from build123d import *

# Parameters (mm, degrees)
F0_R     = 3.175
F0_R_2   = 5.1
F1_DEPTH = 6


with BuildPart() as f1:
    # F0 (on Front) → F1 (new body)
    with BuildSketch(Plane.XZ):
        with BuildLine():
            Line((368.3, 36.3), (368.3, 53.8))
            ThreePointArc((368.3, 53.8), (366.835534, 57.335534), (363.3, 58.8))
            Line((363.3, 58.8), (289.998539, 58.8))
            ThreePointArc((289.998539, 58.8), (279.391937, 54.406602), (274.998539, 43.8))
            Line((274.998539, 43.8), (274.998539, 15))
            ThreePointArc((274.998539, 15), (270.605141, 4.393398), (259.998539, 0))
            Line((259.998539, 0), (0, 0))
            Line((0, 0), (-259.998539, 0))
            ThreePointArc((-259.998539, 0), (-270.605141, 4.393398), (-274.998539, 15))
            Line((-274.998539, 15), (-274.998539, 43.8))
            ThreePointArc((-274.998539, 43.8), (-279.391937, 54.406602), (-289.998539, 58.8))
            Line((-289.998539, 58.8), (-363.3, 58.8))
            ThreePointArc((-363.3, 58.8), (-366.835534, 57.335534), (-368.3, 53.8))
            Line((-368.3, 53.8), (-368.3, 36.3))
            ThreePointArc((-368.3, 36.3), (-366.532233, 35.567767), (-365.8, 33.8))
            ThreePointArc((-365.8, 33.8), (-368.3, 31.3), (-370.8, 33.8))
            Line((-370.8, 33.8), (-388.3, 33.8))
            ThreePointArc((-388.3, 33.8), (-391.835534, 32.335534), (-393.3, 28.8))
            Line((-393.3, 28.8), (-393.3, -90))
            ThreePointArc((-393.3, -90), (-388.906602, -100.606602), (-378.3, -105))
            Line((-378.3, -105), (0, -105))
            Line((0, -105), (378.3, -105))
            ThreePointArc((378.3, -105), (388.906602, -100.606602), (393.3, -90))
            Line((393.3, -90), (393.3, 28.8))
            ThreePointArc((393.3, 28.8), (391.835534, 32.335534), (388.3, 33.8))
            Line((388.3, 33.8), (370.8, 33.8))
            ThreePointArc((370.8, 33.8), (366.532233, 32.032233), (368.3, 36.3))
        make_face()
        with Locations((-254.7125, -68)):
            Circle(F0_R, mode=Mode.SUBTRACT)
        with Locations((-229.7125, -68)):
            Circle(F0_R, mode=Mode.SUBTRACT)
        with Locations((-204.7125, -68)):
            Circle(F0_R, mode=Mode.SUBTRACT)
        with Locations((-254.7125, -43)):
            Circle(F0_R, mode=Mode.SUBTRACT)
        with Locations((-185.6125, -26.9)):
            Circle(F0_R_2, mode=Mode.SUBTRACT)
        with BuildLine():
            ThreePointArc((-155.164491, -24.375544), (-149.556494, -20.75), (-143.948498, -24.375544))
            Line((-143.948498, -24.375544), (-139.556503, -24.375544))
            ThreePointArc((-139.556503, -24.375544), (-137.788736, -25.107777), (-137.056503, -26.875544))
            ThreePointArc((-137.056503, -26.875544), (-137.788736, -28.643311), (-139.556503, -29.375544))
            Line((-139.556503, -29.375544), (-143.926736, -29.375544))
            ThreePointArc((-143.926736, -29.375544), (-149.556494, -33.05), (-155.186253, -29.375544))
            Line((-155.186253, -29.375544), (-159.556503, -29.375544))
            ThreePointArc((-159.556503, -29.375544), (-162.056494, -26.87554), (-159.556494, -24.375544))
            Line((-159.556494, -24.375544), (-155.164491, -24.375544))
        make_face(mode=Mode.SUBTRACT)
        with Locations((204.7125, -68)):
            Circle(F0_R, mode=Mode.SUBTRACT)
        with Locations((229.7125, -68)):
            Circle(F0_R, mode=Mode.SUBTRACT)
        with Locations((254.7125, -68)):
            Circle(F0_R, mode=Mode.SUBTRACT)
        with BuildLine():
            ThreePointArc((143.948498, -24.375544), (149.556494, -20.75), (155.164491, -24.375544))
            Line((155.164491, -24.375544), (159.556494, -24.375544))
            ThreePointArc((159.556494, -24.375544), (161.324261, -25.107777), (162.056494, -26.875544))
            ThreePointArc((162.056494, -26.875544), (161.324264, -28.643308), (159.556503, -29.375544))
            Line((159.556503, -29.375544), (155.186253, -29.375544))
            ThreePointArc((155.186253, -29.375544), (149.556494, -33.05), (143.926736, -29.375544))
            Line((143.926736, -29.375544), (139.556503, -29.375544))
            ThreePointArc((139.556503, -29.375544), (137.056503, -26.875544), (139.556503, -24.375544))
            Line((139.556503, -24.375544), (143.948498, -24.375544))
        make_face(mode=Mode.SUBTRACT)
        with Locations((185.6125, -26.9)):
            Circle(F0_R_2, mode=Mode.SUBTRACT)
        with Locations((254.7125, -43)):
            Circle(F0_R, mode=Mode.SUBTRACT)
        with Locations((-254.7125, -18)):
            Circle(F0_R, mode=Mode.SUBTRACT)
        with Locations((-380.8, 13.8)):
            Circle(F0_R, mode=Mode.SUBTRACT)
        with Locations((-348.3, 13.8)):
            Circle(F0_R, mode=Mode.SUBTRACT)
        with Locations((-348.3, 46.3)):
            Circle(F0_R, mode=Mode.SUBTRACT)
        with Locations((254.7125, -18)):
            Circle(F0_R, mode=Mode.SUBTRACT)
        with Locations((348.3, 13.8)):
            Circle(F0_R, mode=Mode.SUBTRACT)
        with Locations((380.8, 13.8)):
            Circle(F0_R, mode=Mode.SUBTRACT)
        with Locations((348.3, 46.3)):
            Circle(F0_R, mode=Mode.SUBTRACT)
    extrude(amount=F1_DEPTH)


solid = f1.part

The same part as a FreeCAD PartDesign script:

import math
import FreeCAD as App
import Part
import Sketcher

V = App.Vector

doc = App.newDocument("Part")
body = doc.addObject("PartDesign::Body", "Body")

sketch1 = body.newObject("Sketcher::SketchObject", "Sketch")
sketch1.AttachmentSupport = (doc.getObject("XZ_Plane"), [""])
sketch1.MapMode = "FlatFace"
sketch1.addGeometry([
    Part.LineSegment(V(368.3, 36.3, 0), V(368.3, 53.8, 0)),
    Part.ArcOfCircle(Part.Circle(V(363.3, 53.8, 0), V(0, 0, 1), 5), math.radians(0), math.radians(90)),
    Part.LineSegment(V(363.3, 58.8, 0), V(290, 58.8, 0)),
    Part.ArcOfCircle(Part.Circle(V(290, 43.8, 0), V(0, 0, 1), 15), math.radians(90), math.radians(180)),
    Part.LineSegment(V(275, 43.8, 0), V(275, 15, 0)),
    Part.ArcOfCircle(Part.Circle(V(260, 15, 0), V(0, 0, 1), 15), math.radians(-90), math.radians(0)),
    Part.LineSegment(V(260, 0, 0), V(-260, 0, 0)),
    Part.ArcOfCircle(Part.Circle(V(-260, 15, 0), V(0, 0, 1), 15), math.radians(180), math.radians(270)),
    Part.LineSegment(V(-275, 15, 0), V(-275, 43.8, 0)),
    Part.ArcOfCircle(Part.Circle(V(-290, 43.8, 0), V(0, 0, 1), 15), math.radians(0), math.radians(90)),
    Part.LineSegment(V(-290, 58.8, 0), V(-363.3, 58.8, 0)),
    Part.ArcOfCircle(Part.Circle(V(-363.3, 53.8, 0), V(0, 0, 1), 5), math.radians(90), math.radians(180)),
    Part.LineSegment(V(-368.3, 53.8, 0), V(-368.3, 36.3, 0)),
    Part.ArcOfCircle(Part.Circle(V(-368.3, 33.8, 0), V(0, 0, 1), 2.5), math.radians(0), math.radians(90)),
    Part.ArcOfCircle(Part.Circle(V(-368.3, 33.8, 0), V(0, 0, 1), 2.5), math.radians(180), math.radians(360)),
    Part.LineSegment(V(-370.8, 33.8, 0), V(-388.3, 33.8, 0)),
    Part.ArcOfCircle(Part.Circle(V(-388.3, 28.8, 0), V(0, 0, 1), 5), math.radians(90), math.radians(180)),
    Part.LineSegment(V(-393.3, 28.8, 0), V(-393.3, -90, 0)),
    Part.ArcOfCircle(Part.Circle(V(-378.3, -90, 0), V(0, 0, 1), 15), math.radians(180), math.radians(270)),
    Part.LineSegment(V(-378.3, -105, 0), V(378.3, -105, 0)),
    Part.ArcOfCircle(Part.Circle(V(378.3, -90, 0), V(0, 0, 1), 15), math.radians(-90), math.radians(0)),
    Part.LineSegment(V(393.3, -90, 0), V(393.3, 28.8, 0)),
    Part.ArcOfCircle(Part.Circle(V(388.3, 28.8, 0), V(0, 0, 1), 5), math.radians(0), math.radians(90)),
    Part.LineSegment(V(388.3, 33.8, 0), V(370.8, 33.8, 0)),
    Part.ArcOfCircle(Part.Circle(V(368.3, 33.8, 0), V(0, 0, 1), 2.5), math.radians(90), math.radians(360)),
    Part.Circle(V(-254.7, -68, 0), V(0, 0, 1), 3.2),
    Part.Circle(V(-229.7, -68, 0), V(0, 0, 1), 3.2),
    Part.Circle(V(-204.7, -68, 0), V(0, 0, 1), 3.2),
    Part.Circle(V(-254.7, -43, 0), V(0, 0, 1), 3.2),
    Part.Circle(V(-254.7, -18, 0), V(0, 0, 1), 3.2),
    Part.Circle(V(-185.6, -26.9, 0), V(0, 0, 1), 5.1),
    Part.LineSegment(V(-159.6, -24.4, 0), V(-155.2, -24.4, 0)),
    Part.ArcOfCircle(Part.Circle(V(-149.6, -26.9, 0), V(0, 0, 1), 6.2), math.radians(24), math.radians(156)),
    Part.LineSegment(V(-143.9, -24.4, 0), V(-139.6, -24.4, 0)),
    Part.ArcOfCircle(Part.Circle(V(-139.6, -26.9, 0), V(0, 0, 1), 2.5), math.radians(0), math.radians(90)),
    Part.ArcOfCircle(Part.Circle(V(-139.6, -26.9, 0), V(0, 0, 1), 2.5), math.radians(-90), math.radians(0)),
    Part.LineSegment(V(-139.6, -29.4, 0), V(-143.9, -29.4, 0)),
    Part.ArcOfCircle(Part.Circle(V(-149.6, -26.9, 0), V(0, 0, 1), 6.1), math.radians(-156), math.radians(-24)),
    Part.LineSegment(V(-155.2, -29.4, 0), V(-159.6, -29.4, 0)),
    Part.ArcOfCircle(Part.Circle(V(-159.6, -26.9, 0), V(0, 0, 1), 2.5), math.radians(90), math.radians(270)),
    Part.Circle(V(204.7, -68, 0), V(0, 0, 1), 3.2),
    Part.Circle(V(229.7, -68, 0), V(0, 0, 1), 3.2),
    Part.Circle(V(254.7, -68, 0), V(0, 0, 1), 3.2),
    Part.Circle(V(254.7, -43, 0), V(0, 0, 1), 3.2),
    Part.LineSegment(V(139.6, -24.4, 0), V(143.9, -24.4, 0)),
    Part.ArcOfCircle(Part.Circle(V(149.6, -26.9, 0), V(0, 0, 1), 6.2), math.radians(24), math.radians(156)),
    Part.LineSegment(V(155.2, -24.4, 0), V(159.6, -24.4, 0)),
    Part.ArcOfCircle(Part.Circle(V(159.6, -26.9, 0), V(0, 0, 1), 2.5), math.radians(0), math.radians(90)),
    Part.ArcOfCircle(Part.Circle(V(159.6, -26.9, 0), V(0, 0, 1), 2.5), math.radians(-90), math.radians(0)),
    Part.LineSegment(V(159.6, -29.4, 0), V(155.2, -29.4, 0)),
    Part.ArcOfCircle(Part.Circle(V(149.6, -26.9, 0), V(0, 0, 1), 6.1), math.radians(-156), math.radians(-24)),
    Part.LineSegment(V(143.9, -29.4, 0), V(139.6, -29.4, 0)),
    Part.ArcOfCircle(Part.Circle(V(139.6, -26.9, 0), V(0, 0, 1), 2.5), math.radians(90), math.radians(270)),
    Part.Circle(V(185.6, -26.9, 0), V(0, 0, 1), 5.1),
    Part.Circle(V(254.7, -18, 0), V(0, 0, 1), 3.2),
    Part.Circle(V(-380.8, 13.8, 0), V(0, 0, 1), 3.2),
    Part.Circle(V(-348.3, 13.8, 0), V(0, 0, 1), 3.2),
    Part.Circle(V(-348.3, 46.3, 0), V(0, 0, 1), 3.2),
    Part.Circle(V(348.3, 13.8, 0), V(0, 0, 1), 3.2),
    Part.Circle(V(380.8, 13.8, 0), V(0, 0, 1), 3.2),
    Part.Circle(V(348.3, 46.3, 0), V(0, 0, 1), 3.2),
], False)
sketch1.addConstraint([
    Sketcher.Constraint("Tangent", 0, 2, 1, 1),
    Sketcher.Constraint("Tangent", 1, 2, 2, 1),
    Sketcher.Constraint("Tangent", 2, 2, 3, 1),
    Sketcher.Constraint("Tangent", 3, 2, 4, 1),
    Sketcher.Constraint("Tangent", 4, 2, 5, 2),
    Sketcher.Constraint("Tangent", 5, 1, 6, 1),
    Sketcher.Constraint("Tangent", 6, 2, 7, 2),
    Sketcher.Constraint("Tangent", 7, 1, 8, 1),
    Sketcher.Constraint("Tangent", 8, 2, 9, 1),
    Sketcher.Constraint("Tangent", 9, 2, 10, 1),
    Sketcher.Constraint("Tangent", 10, 2, 11, 1),
    Sketcher.Constraint("Tangent", 11, 2, 12, 1),
    Sketcher.Constraint("Coincident", 12, 2, 13, 2),
    Sketcher.Constraint("Tangent", 13, 1, 14, 2),
    Sketcher.Constraint("Coincident", 14, 1, 15, 1),
    Sketcher.Constraint("Tangent", 15, 2, 16, 1),
    Sketcher.Constraint("Tangent", 16, 2, 17, 1),
    Sketcher.Constraint("Tangent", 17, 2, 18, 1),
    Sketcher.Constraint("Tangent", 18, 2, 19, 1),
    Sketcher.Constraint("Tangent", 19, 2, 20, 1),
    Sketcher.Constraint("Tangent", 20, 2, 21, 1),
    Sketcher.Constraint("Tangent", 21, 2, 22, 1),
    Sketcher.Constraint("Tangent", 22, 2, 23, 1),
    Sketcher.Constraint("Coincident", 23, 2, 24, 2),
    Sketcher.Constraint("Coincident", 24, 1, 0, 1),
    Sketcher.Constraint("Coincident", 31, 2, 32, 2),
    Sketcher.Constraint("Coincident", 32, 1, 33, 1),
    Sketcher.Constraint("Tangent", 33, 2, 34, 2),
    Sketcher.Constraint("Tangent", 34, 1, 35, 2),
    Sketcher.Constraint("Tangent", 35, 1, 36, 1),
    Sketcher.Constraint("Coincident", 36, 2, 37, 2),
    Sketcher.Constraint("Coincident", 37, 1, 38, 1),
    Sketcher.Constraint("Coincident", 38, 2, 39, 2),
    Sketcher.Constraint("Tangent", 39, 1, 31, 1),
    Sketcher.Constraint("Coincident", 44, 2, 45, 2),
    Sketcher.Constraint("Coincident", 45, 1, 46, 1),
    Sketcher.Constraint("Tangent", 46, 2, 47, 2),
    Sketcher.Constraint("Tangent", 47, 1, 48, 2),
    Sketcher.Constraint("Coincident", 48, 1, 49, 1),
    Sketcher.Constraint("Coincident", 49, 2, 50, 2),
    Sketcher.Constraint("Coincident", 50, 1, 51, 1),
    Sketcher.Constraint("Tangent", 51, 2, 52, 2),
    Sketcher.Constraint("Tangent", 52, 1, 44, 1),
    Sketcher.Constraint("Vertical", 0),
    Sketcher.Constraint("Horizontal", 2),
    Sketcher.Constraint("Vertical", 4),
    Sketcher.Constraint("Horizontal", 6),
    Sketcher.Constraint("Vertical", 8),
    Sketcher.Constraint("Horizontal", 10),
    Sketcher.Constraint("Vertical", 12),
    Sketcher.Constraint("Horizontal", 15),
    Sketcher.Constraint("Vertical", 17),
    Sketcher.Constraint("Horizontal", 19),
    Sketcher.Constraint("Vertical", 21),
    Sketcher.Constraint("Horizontal", 23),
    Sketcher.Constraint("Horizontal", 31),
    Sketcher.Constraint("Horizontal", 33),
    Sketcher.Constraint("Horizontal", 36),
    Sketcher.Constraint("Horizontal", 38),
    Sketcher.Constraint("Horizontal", 44),
    Sketcher.Constraint("Horizontal", 46),
    Sketcher.Constraint("Horizontal", 49),
    Sketcher.Constraint("Horizontal", 51),
    Sketcher.Constraint("Coincident", 37, 3, 32, 3),
    Sketcher.Constraint("Coincident", 50, 3, 45, 3),
    Sketcher.Constraint("Equal", 3, 5),
    Sketcher.Constraint("Equal", 5, 7),
    Sketcher.Constraint("Equal", 7, 9),
    Sketcher.Constraint("Equal", 1, 11),
    Sketcher.Constraint("Equal", 13, 14),
    Sketcher.Constraint("Equal", 11, 16),
    Sketcher.Constraint("Equal", 9, 18),
    Sketcher.Constraint("Equal", 18, 20),
    Sketcher.Constraint("Equal", 16, 22),
    Sketcher.Constraint("Equal", 14, 24),
    Sketcher.Constraint("Equal", 25, 26),
    Sketcher.Constraint("Equal", 26, 27),
    Sketcher.Constraint("Equal", 27, 28),
    Sketcher.Constraint("Equal", 28, 29),
    Sketcher.Constraint("Equal", 24, 34),
    Sketcher.Constraint("Equal", 34, 35),
    Sketcher.Constraint("Equal", 32, 37),
    Sketcher.Constraint("Equal", 35, 39),
    Sketcher.Constraint("Equal", 29, 40),
    Sketcher.Constraint("Equal", 40, 41),
    Sketcher.Constraint("Equal", 41, 42),
    Sketcher.Constraint("Equal", 42, 43),
    Sketcher.Constraint("Equal", 37, 45),
    Sketcher.Constraint("Equal", 39, 47),
    Sketcher.Constraint("Equal", 47, 48),
    Sketcher.Constraint("Equal", 45, 50),
    Sketcher.Constraint("Equal", 48, 52),
    Sketcher.Constraint("Equal", 30, 53),
    Sketcher.Constraint("Equal", 43, 54),
    Sketcher.Constraint("Equal", 54, 55),
    Sketcher.Constraint("Equal", 55, 56),
    Sketcher.Constraint("Equal", 56, 57),
    Sketcher.Constraint("Equal", 57, 58),
    Sketcher.Constraint("Equal", 58, 59),
    Sketcher.Constraint("Equal", 59, 60),
    Sketcher.Constraint("Symmetric", 5, 1, 6, 2, -1, 1),
    Sketcher.Constraint("Symmetric", 1, 3, 11, 3, -2),
    Sketcher.Constraint("Symmetric", 16, 3, 22, 3, -2),
    Sketcher.Constraint("Symmetric", 13, 3, 24, 3, -2),
    Sketcher.Constraint("Symmetric", 27, 3, 40, 3, -2),
    Sketcher.Constraint("Symmetric", 26, 3, 41, 3, -2),
    Sketcher.Constraint("Symmetric", 25, 3, 42, 3, -2),
    Sketcher.Constraint("Symmetric", 28, 3, 43, 3, -2),
    Sketcher.Constraint("Symmetric", 32, 3, 45, 3, -2),
    Sketcher.Constraint("Symmetric", 39, 3, 47, 3, -2),
    Sketcher.Constraint("Symmetric", 34, 3, 52, 3, -2),
    Sketcher.Constraint("Symmetric", 30, 3, 53, 3, -2),
    Sketcher.Constraint("Symmetric", 29, 3, 54, 3, -2),
    Sketcher.Constraint("Symmetric", 56, 3, 58, 3, -2),
    Sketcher.Constraint("Symmetric", 55, 3, 59, 3, -2),
    Sketcher.Constraint("Symmetric", 57, 3, 60, 3, -2),
    Sketcher.Constraint("Horizontal", 25, 3, 26, 3),
    Sketcher.Constraint("Horizontal", 26, 3, 27, 3),
    Sketcher.Constraint("Horizontal", 30, 3, 32, 3),
    Sketcher.Constraint("Horizontal", 35, 3, 39, 3),
    Sketcher.Constraint("Horizontal", 55, 3, 56, 3),
    Sketcher.Constraint("Horizontal", 24, 3, 13, 1),
    Sketcher.Constraint("Horizontal", 13, 1, 14, 1),
    Sketcher.Constraint("Horizontal", 52, 3, 34, 1),
    Sketcher.Constraint("Horizontal", 34, 1, 47, 1),
    Sketcher.Constraint("Vertical", 25, 3, 28, 3),
    Sketcher.Constraint("Vertical", 28, 3, 29, 3),
    Sketcher.Constraint("Vertical", 56, 3, 57, 3),
    Sketcher.Constraint("Vertical", 24, 3, 0, 2),
    Sketcher.Constraint("Equal", 38, 49),
    Sketcher.Constraint("Equal", 23, 0),
    Sketcher.Constraint("Radius", 1, 5.0),
    Sketcher.Constraint("Radius", 3, 14.999999),
    Sketcher.Constraint("Diameter", 30, 10.2),
    Sketcher.Constraint("Radius", 13, 2.5),
    Sketcher.Constraint("Diameter", 25, 6.35),
    Sketcher.Constraint("Radius", 32, 6.15),
    Sketcher.Constraint("DistanceX", 15, 2, 15, 1, 17.5),
    Sketcher.Constraint("DistanceX", 19, 1, 19, 2, 756.6),
    Sketcher.Constraint("DistanceY", 4, 2, 4, 1, 28.8),
    Sketcher.Constraint("DistanceY", 17, 2, 17, 1, 118.8),
    Sketcher.Constraint("DistanceY", 25, 3, -1, 1, 68.0),
    Sketcher.Constraint("DistanceY", 28, 3, -1, 1, 43.0),
    Sketcher.Constraint("DistanceY", 29, 3, -1, 1, 18.0),
    Sketcher.Constraint("DistanceY", 30, 3, -1, 1, 26.9),
    Sketcher.Constraint("DistanceX", 55, 3, -1, 1, 380.8),
    Sketcher.Constraint("DistanceY", -1, 1, 55, 3, 13.8),
    Sketcher.Constraint("DistanceX", 56, 3, -1, 1, 348.3),
    Sketcher.Constraint("DistanceY", -1, 1, 57, 3, 46.3),
    Sketcher.Constraint("DistanceX", 2, 2, 2, 1, 73.301461),
    Sketcher.Constraint("DistanceX", 38, 2, 38, 1, 4.37025),
    Sketcher.Constraint("DistanceX", 25, 3, -1, 1, 254.7125),
    Sketcher.Constraint("DistanceX", 26, 3, -1, 1, 229.7125),
    Sketcher.Constraint("DistanceX", 27, 3, -1, 1, 204.7125),
    Sketcher.Constraint("DistanceX", 30, 3, -1, 1, 185.6125),
    Sketcher.Constraint("DistanceX", -1, 1, 44, 2, 143.948498),
    Sketcher.Constraint("DistanceX", 31, 1, 31, 2, 4.392003),
    Sketcher.Constraint("DistanceX", 33, 1, 33, 2, 4.391995),
    Sketcher.Constraint("DistanceX", 36, 2, 36, 1, 4.370233),
])
pad1 = body.newObject("PartDesign::Pad", "Pad")
pad1.Profile = sketch1
pad1.Length = 6

doc.recompute()
